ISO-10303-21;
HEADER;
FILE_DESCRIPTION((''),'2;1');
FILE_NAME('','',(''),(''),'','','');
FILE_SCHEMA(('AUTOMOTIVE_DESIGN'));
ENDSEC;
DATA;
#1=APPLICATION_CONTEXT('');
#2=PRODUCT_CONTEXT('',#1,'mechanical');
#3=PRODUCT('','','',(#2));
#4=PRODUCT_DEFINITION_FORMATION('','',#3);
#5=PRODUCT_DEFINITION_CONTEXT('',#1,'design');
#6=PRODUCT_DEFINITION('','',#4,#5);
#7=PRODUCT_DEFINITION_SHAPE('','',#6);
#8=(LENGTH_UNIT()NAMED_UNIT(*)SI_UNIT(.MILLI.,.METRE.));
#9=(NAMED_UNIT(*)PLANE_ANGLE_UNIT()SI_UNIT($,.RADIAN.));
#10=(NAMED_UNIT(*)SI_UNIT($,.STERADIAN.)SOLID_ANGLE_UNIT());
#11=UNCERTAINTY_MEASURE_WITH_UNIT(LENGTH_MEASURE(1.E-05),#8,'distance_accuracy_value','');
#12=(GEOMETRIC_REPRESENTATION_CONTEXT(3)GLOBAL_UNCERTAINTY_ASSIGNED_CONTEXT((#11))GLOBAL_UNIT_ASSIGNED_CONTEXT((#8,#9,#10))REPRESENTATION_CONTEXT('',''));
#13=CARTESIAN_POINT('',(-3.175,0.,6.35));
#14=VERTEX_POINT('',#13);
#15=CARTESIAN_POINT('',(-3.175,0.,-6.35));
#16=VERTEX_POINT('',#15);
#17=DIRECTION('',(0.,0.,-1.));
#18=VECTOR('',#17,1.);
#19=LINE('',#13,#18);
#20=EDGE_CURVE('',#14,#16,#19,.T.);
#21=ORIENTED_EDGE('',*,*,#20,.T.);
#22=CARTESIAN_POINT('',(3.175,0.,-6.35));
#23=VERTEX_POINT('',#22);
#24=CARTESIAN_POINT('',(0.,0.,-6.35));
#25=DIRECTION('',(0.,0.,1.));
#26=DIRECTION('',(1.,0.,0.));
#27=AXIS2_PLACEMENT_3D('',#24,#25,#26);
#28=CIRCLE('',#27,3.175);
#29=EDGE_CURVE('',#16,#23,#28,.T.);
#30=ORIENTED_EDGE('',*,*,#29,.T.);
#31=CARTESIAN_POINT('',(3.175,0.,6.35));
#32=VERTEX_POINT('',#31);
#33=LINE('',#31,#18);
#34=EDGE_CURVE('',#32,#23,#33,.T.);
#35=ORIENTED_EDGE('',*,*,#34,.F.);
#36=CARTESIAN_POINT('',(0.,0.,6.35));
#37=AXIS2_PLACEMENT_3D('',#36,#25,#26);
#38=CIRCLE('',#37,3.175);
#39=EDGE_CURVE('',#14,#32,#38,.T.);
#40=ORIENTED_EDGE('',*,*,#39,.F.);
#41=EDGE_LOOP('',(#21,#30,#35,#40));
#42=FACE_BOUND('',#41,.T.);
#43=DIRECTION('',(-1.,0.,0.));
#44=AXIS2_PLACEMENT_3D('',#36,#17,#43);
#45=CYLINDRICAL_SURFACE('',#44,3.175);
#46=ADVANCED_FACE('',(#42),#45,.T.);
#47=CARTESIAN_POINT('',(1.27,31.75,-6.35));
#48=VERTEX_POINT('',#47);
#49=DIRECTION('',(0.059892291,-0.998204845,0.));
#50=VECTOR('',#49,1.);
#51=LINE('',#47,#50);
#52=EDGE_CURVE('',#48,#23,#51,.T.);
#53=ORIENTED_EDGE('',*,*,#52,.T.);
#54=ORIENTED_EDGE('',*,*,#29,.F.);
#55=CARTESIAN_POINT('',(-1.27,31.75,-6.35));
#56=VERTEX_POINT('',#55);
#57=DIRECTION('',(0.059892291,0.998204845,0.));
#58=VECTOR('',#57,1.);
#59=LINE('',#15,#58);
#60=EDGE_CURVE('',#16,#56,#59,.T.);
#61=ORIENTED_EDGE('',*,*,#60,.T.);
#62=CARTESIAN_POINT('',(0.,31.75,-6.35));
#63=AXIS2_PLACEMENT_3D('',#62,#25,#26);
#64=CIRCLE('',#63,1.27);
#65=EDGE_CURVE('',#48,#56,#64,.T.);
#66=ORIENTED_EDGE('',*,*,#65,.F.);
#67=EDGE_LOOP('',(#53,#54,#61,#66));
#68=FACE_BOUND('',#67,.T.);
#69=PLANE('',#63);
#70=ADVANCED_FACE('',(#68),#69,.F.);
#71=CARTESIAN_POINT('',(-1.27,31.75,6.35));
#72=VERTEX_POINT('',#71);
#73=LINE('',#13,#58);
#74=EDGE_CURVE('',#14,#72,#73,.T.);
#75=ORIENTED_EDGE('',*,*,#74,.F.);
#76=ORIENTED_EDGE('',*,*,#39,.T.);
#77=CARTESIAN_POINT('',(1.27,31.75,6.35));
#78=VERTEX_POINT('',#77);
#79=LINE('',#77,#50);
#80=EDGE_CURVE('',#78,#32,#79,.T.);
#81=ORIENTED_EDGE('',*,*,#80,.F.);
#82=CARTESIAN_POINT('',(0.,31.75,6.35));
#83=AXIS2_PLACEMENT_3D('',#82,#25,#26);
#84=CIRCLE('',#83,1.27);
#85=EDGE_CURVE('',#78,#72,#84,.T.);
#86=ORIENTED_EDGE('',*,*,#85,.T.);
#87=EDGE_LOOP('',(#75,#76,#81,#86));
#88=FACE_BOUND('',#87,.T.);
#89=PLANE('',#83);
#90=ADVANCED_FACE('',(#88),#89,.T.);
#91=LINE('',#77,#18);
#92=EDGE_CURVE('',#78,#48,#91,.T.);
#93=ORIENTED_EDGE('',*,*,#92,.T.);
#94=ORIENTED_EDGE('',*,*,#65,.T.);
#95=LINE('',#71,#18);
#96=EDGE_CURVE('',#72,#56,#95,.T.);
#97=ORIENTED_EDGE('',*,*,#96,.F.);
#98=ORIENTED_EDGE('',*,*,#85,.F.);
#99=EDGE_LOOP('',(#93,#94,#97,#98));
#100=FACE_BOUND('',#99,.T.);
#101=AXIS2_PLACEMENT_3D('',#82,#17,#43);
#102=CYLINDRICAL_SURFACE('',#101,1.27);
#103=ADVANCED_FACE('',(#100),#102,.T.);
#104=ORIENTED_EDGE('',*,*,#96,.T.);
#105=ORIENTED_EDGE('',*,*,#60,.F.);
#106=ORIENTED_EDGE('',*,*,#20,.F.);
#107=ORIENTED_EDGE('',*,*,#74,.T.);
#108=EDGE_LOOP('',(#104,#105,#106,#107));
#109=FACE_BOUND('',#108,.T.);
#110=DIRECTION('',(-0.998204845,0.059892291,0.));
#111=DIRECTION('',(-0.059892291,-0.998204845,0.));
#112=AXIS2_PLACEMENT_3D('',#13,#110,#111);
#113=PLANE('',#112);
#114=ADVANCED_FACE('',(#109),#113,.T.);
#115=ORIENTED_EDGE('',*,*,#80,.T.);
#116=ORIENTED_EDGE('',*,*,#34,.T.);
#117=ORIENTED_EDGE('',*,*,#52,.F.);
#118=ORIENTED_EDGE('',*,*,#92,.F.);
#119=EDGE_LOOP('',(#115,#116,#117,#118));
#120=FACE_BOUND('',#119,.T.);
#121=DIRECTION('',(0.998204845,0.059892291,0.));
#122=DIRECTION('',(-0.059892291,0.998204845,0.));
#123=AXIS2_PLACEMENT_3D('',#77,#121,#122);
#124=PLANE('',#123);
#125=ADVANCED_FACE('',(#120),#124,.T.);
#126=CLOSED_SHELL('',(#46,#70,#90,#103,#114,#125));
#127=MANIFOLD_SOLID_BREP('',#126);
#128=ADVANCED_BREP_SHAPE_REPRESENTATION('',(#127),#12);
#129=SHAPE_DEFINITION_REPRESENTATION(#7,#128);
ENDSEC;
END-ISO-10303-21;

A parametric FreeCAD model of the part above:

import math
import FreeCAD as App
import Part
import Sketcher
from FreeCAD import Vector
Q = App.Units.Quantity

doc = App.newDocument("Part")
body = doc.addObject("PartDesign::Body", "Body")

sketch1 = doc.addObject("Sketcher::SketchObject", "Sketch")
body.addObject(sketch1)
sketch1.AttachmentSupport = (doc.XY_Plane, [""])
sketch1.MapMode = "FlatFace"
sketch1.addGeometry([
    Part.LineSegment(Vector(3.2, 0, 0), Vector(1.3, 31.8, 0)),
    Part.ArcOfCircle(Part.Circle(Vector(0, 31.8, 0), Vector(0, 0, 1), 1.3), math.radians(0), math.radians(180)),
    Part.LineSegment(Vector(-1.3, 31.8, 0), Vector(-3.2, 0, 0)),
    Part.ArcOfCircle(Part.Circle(Vector(0, 0, 0), Vector(0, 0, 1), 3.2), math.radians(180), math.radians(360)),
], False)
sketch1.addConstraint([
    Sketcher.Constraint("Coincident", 0, 2, 1, 1),
    Sketcher.Constraint("Coincident", 1, 2, 2, 1),
    Sketcher.Constraint("Coincident", 2, 2, 3, 1),
    Sketcher.Constraint("Coincident", 3, 2, 0, 1),
    Sketcher.Constraint("Coincident", 3, 3, -1, 1),
    Sketcher.Constraint("Symmetric", 0, 2, 1, 2, -2),
    Sketcher.Constraint("PointOnObject", 2, 2, -1),
    Sketcher.Constraint("PointOnObject", 3, 2, -1),
    Sketcher.Constraint("Horizontal", 1, 3, 0, 2),
    Sketcher.Constraint("Radius", 1, Q("0.05 in")),
    Sketcher.Constraint("Radius", 3, Q("0.125 in")),
    Sketcher.Constraint("DistanceY", -1, 1, 1, 3, Q("1.25 in")),
])
pad1 = doc.addObject("PartDesign::Pad", "Pad")
body.addObject(pad1)
pad1.Profile = sketch1
pad1.Length = Q("0.5 in")
pad1.Midplane = True

doc.recompute()
